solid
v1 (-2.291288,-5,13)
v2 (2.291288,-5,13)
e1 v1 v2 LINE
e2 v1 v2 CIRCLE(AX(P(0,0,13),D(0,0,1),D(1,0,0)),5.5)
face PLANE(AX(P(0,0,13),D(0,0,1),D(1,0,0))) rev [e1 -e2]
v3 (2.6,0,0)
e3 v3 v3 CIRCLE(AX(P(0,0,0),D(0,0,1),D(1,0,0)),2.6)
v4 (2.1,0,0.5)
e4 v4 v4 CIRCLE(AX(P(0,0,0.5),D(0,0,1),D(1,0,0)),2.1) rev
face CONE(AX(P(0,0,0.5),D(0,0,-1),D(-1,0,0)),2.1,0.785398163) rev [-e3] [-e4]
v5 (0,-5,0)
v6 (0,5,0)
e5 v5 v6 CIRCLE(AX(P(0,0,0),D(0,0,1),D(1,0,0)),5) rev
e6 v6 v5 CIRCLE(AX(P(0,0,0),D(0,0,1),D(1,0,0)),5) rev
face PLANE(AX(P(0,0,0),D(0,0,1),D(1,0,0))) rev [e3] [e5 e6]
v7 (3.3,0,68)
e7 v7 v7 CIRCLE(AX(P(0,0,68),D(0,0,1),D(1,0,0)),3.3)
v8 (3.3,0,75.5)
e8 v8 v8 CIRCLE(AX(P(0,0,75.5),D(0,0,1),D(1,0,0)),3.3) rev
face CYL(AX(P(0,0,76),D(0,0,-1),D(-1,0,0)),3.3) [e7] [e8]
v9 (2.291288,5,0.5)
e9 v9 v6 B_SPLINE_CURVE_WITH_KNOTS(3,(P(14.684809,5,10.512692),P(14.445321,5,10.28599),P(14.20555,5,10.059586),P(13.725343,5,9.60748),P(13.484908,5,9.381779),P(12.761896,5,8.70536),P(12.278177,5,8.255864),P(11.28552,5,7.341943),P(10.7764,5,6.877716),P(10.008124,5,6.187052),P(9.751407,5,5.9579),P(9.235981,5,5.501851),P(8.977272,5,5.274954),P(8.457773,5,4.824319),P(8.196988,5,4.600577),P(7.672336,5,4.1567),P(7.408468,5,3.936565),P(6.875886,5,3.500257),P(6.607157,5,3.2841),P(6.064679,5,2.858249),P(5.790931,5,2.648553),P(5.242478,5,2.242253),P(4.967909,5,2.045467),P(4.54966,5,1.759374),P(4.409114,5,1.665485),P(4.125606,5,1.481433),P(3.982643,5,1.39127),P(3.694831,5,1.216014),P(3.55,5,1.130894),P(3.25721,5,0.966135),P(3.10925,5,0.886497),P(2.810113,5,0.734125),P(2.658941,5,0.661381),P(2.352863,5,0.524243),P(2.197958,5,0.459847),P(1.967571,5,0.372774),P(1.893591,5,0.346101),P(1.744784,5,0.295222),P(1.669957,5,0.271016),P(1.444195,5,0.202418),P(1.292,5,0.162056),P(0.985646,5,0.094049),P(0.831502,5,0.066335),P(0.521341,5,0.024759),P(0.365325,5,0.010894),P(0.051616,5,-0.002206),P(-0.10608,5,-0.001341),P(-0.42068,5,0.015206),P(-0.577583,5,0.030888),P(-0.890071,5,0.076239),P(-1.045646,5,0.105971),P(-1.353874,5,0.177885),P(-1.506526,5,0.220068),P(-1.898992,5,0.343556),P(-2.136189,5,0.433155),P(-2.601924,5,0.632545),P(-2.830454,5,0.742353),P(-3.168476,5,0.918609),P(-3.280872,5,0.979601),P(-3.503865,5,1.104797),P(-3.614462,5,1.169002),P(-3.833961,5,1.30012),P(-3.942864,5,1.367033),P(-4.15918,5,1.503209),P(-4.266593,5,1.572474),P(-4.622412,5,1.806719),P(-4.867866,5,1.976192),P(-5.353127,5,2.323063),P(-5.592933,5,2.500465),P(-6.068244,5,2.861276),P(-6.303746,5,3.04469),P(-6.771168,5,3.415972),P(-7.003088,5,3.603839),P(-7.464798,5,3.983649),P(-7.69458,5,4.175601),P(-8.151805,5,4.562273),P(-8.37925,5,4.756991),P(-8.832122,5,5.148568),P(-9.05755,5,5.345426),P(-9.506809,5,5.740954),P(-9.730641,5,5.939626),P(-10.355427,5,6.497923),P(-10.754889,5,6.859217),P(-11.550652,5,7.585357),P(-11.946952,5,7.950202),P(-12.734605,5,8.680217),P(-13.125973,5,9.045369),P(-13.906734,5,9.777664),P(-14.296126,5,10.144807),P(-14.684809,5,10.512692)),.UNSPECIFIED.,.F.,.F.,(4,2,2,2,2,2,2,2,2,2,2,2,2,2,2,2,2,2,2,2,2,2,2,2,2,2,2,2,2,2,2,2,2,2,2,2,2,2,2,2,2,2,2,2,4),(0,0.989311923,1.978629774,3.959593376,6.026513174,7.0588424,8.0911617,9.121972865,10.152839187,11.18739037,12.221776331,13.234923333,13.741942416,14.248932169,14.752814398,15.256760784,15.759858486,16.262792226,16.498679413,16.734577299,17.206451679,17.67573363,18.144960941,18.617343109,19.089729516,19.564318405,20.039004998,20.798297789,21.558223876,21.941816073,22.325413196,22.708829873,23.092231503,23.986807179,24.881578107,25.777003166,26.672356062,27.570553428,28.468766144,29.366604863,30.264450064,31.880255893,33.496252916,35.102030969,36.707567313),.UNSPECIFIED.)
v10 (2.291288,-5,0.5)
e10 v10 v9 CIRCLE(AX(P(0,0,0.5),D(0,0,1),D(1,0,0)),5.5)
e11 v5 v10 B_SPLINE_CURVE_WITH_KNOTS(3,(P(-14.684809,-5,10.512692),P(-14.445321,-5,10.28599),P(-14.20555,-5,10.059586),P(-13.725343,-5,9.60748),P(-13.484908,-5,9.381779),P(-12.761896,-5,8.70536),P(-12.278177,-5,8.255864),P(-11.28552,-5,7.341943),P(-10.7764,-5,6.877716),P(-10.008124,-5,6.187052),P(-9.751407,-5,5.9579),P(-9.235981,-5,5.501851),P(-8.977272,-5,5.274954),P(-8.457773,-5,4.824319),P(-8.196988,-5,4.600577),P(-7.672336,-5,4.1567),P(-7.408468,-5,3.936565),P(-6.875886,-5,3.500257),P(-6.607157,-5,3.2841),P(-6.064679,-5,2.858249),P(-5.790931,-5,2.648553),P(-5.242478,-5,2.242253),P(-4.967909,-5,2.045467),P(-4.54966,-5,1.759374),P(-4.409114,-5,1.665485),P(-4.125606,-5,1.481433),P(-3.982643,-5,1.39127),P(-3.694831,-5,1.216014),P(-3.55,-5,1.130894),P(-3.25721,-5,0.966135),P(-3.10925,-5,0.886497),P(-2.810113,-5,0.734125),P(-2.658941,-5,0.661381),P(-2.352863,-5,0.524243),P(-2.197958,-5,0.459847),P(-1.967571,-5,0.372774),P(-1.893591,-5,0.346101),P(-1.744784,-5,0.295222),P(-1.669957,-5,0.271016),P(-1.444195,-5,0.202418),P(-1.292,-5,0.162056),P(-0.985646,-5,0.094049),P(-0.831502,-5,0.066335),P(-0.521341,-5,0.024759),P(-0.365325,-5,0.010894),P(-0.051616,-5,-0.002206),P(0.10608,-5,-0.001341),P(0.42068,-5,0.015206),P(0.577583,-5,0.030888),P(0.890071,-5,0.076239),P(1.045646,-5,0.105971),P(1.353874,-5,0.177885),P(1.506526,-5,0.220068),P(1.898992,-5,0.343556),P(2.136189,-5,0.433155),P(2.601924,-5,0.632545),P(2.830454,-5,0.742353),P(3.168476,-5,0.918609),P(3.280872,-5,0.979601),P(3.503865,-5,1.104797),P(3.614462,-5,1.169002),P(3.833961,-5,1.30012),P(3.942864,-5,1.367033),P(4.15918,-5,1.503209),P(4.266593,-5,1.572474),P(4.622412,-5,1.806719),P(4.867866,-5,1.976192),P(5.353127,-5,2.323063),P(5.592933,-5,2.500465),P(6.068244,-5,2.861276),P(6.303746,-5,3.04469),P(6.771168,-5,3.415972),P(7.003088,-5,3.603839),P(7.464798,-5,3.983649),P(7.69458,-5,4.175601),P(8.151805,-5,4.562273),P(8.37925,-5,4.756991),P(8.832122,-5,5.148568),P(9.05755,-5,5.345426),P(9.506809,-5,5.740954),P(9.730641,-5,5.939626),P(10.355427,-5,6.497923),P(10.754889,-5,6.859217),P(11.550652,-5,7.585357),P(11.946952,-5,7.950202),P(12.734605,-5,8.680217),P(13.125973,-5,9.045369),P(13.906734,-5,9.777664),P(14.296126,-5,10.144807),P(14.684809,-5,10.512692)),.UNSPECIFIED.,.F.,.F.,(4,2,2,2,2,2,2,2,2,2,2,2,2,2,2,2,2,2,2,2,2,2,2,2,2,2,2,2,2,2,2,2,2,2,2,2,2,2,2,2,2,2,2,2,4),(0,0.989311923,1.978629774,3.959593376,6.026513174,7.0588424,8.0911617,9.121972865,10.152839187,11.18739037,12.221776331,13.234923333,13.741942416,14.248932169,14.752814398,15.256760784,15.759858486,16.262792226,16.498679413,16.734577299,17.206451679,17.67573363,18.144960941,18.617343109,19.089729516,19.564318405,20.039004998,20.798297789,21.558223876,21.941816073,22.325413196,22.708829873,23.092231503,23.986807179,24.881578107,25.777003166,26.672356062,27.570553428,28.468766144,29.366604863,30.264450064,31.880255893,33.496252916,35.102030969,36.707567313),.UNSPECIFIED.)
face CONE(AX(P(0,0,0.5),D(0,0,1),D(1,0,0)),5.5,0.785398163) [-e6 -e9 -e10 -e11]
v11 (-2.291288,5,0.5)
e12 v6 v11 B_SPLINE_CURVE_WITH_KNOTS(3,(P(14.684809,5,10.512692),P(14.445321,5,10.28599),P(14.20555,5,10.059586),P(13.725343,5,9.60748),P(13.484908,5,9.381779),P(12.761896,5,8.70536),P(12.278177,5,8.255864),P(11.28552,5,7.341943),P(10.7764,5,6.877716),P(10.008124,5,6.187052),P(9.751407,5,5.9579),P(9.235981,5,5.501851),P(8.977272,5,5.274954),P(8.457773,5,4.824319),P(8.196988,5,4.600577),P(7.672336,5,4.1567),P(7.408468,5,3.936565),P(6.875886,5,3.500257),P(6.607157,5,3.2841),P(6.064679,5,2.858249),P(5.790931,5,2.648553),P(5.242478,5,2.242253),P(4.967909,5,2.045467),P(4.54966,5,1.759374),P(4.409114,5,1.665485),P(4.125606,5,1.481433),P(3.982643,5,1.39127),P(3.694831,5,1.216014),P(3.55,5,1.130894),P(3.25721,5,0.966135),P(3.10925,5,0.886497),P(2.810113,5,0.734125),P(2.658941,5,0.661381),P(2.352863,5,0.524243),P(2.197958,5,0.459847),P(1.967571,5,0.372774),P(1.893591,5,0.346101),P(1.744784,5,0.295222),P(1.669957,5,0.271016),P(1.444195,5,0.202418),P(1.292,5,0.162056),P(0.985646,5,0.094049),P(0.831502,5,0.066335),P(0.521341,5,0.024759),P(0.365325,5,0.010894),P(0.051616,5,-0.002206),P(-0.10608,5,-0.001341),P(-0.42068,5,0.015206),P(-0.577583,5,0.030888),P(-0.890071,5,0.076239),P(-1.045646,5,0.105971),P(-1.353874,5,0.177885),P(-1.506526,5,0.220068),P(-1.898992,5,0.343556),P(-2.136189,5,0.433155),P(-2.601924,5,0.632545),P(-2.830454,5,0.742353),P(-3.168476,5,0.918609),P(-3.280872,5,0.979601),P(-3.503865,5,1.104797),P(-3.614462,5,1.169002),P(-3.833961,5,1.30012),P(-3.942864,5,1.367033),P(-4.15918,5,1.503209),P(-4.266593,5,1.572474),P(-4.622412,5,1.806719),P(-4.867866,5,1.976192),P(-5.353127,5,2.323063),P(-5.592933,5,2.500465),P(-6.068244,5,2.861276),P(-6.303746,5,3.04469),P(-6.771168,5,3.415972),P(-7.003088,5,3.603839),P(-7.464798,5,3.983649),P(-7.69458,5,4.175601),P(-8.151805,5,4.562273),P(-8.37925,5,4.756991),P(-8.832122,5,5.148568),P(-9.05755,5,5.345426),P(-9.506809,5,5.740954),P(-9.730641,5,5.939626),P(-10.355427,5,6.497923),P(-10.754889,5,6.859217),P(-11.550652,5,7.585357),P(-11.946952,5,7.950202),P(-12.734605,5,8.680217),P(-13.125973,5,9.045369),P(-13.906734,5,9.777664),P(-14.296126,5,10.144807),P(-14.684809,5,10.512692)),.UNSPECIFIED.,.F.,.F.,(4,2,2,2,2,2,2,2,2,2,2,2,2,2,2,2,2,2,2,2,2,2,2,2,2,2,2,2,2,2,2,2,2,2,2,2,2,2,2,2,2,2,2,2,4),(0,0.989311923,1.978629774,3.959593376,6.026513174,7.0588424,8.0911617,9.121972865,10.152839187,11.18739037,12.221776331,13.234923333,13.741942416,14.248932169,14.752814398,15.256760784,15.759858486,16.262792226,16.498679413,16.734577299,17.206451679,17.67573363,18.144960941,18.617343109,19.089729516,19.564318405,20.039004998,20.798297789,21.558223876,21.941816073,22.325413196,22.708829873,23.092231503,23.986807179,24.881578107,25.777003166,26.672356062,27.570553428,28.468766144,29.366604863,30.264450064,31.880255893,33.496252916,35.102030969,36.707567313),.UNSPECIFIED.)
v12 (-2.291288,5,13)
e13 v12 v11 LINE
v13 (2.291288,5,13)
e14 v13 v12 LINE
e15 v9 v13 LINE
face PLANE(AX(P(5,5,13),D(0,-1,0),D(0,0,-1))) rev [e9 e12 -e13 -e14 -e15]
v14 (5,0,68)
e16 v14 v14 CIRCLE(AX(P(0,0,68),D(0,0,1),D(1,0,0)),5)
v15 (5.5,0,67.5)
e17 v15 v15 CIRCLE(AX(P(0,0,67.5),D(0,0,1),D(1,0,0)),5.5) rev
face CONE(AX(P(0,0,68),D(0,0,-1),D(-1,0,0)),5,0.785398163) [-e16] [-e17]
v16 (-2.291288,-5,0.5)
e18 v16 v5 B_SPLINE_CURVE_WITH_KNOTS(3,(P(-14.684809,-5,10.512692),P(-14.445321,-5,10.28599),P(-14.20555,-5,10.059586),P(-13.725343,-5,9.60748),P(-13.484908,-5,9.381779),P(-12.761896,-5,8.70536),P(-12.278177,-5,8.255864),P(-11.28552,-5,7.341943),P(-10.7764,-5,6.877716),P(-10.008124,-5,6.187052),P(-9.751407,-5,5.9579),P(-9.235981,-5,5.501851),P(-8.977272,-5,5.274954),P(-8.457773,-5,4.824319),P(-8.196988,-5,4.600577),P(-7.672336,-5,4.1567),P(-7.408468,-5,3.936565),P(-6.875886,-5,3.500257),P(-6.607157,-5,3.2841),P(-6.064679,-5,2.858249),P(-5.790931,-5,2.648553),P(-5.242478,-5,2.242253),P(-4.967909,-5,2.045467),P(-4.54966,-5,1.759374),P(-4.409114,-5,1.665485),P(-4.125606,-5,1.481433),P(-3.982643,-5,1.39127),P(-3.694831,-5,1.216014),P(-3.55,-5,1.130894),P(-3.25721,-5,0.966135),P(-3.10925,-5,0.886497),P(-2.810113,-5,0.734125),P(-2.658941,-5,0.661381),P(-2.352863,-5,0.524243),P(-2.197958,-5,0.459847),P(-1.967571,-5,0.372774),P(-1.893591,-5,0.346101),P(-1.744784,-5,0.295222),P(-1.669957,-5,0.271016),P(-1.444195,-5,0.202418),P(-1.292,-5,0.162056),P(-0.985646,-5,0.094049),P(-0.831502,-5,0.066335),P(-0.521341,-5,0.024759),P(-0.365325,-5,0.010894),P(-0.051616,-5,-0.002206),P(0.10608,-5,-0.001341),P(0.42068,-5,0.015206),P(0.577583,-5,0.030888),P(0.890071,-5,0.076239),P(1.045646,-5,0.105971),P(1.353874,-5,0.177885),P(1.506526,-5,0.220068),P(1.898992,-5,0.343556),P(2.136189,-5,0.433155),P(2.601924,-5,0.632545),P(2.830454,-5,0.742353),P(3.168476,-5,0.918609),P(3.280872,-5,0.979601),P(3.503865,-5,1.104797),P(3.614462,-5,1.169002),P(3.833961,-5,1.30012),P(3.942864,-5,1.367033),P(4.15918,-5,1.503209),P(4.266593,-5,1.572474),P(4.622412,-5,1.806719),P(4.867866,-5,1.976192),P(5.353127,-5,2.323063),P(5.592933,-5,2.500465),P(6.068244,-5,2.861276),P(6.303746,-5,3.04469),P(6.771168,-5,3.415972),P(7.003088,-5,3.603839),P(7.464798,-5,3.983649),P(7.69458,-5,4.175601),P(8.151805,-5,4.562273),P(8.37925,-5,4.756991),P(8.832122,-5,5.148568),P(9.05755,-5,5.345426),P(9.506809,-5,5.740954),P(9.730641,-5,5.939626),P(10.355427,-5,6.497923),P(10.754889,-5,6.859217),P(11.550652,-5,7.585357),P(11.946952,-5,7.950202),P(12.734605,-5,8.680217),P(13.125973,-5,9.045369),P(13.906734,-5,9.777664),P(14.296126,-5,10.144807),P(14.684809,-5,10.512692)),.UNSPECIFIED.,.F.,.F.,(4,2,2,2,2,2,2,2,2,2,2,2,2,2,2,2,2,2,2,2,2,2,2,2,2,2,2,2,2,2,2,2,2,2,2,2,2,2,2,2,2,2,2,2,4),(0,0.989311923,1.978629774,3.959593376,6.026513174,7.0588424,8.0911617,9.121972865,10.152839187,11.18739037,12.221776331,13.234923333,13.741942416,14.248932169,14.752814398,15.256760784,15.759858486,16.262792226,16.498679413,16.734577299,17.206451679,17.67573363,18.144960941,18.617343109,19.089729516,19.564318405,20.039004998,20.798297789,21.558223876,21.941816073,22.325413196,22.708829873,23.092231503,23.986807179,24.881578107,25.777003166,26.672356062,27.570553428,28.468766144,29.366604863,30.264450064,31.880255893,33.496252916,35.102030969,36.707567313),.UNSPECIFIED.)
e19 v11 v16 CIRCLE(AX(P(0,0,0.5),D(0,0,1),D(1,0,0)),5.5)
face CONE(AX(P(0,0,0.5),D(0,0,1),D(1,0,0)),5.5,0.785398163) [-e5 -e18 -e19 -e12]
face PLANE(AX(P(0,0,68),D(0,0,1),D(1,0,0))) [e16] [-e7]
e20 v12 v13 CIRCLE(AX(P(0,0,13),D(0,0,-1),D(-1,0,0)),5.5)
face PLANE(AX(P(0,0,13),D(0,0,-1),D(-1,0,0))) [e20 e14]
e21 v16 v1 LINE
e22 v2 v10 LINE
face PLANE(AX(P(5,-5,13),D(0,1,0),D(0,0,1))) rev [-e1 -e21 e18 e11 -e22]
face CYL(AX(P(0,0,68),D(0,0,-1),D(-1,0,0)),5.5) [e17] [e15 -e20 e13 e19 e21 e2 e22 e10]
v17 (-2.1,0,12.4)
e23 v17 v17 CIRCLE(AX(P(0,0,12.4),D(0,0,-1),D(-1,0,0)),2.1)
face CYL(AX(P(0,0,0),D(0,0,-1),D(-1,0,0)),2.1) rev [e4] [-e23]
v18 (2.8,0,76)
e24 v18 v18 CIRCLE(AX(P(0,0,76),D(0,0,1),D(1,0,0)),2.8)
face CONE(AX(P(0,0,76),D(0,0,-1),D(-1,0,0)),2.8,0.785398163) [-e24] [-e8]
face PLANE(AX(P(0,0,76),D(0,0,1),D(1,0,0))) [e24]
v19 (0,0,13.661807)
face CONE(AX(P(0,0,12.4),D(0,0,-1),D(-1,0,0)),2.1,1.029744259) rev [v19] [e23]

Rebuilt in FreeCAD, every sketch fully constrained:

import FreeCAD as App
import Part
import Sketcher

V = App.Vector


def edges_at(feature, points):
    """Names of the edges that pass closest to the given points."""
    edges = feature.Shape.Edges
    near = lambda p: min(range(len(edges)), key=lambda i: edges[i].distToShape(Part.Vertex(*p))[0])
    return sorted({f"Edge{near(p) + 1}" for p in points})


def add_polygon(sketch, points):
    """Adds a closed chain of lines whose ends are joined by coincident constraints."""
    first, n = sketch.GeometryCount, len(points)
    for a, b in zip(points, points[1:] + points[:1]):
        sketch.addGeometry(Part.LineSegment(App.Vector(*a, 0), App.Vector(*b, 0)), False)
    for i in range(n):
        sketch.addConstraint(Sketcher.Constraint("Coincident", first + i, 2, first + (i + 1) % n, 1))

doc = App.newDocument("Part")
params = doc.addObject("Spreadsheet::Sheet", "Params")
for row, (alias, value) in enumerate([
    ("sketch1_diameter", "11 mm"),
    ("pad1_length", "68 mm"),
    ("chamfer_size", "0.5 mm"),
    ("sketch2_diameter", "6.6 mm"),
    ("pad2_length", "8 mm"),
    ("chamfer2_size", "0.5 mm"),
    ("sketch3_diameter", "4.2 mm"),
    ("hole_diameter", "4.2 mm"),
    ("hole_depth", "12.4 mm"),
    ("chamfer3_size", "0.5 mm"),
    ("sketch4_width", "10 mm"),
    ("sketch4_height", "3 mm"),
    ("pocket1_length", "13 mm"),
], start=1):
    params.set(f"A{row}", alias)
    params.set(f"B{row}", "=" + value)
    params.setAlias(f"B{row}", alias)

body = doc.addObject("PartDesign::Body", "Body")

# Sketch on XY plane
sketch1 = doc.addObject("Sketcher::SketchObject", "Sketch")
body.addObject(sketch1)
sketch1.AttachmentSupport = (doc.XY_Plane, [""])
sketch1.MapMode = "FlatFace"
sketch1.addGeometry(Part.Circle(V(0, 0, 0), V(0, 0, 1), 5.5), False)
sketch1.addConstraint(Sketcher.Constraint("Coincident", 0, 3, -1, 1))
sketch1.addConstraint(Sketcher.Constraint("Diameter", 0, 11.0))
sketch1.setExpression("Constraints[1]", "Params.sketch1_diameter")
pad1 = doc.addObject("PartDesign::Pad", "Pad")
body.addObject(pad1)
pad1.Profile = sketch1
pad1.setExpression("Length", "Params.pad1_length")
doc.recompute()

chamfer = doc.addObject("PartDesign::Chamfer", "Chamfer")
body.addObject(chamfer)
chamfer.Base = (pad1, edges_at(pad1, [(-5.5, 0, 0), (-5.5, 0, 68)]))
chamfer.setExpression("Size", "Params.chamfer_size")

# Sketch on XY plane
sketch2 = doc.addObject("Sketcher::SketchObject", "Sketch001")
body.addObject(sketch2)
sketch2.AttachmentSupport = (doc.XY_Plane, [""])
sketch2.MapMode = "FlatFace"
sketch2.AttachmentOffset = App.Placement(V(0, 0, 68), App.Rotation())
sketch2.addGeometry(Part.Circle(V(0, 0, 0), V(0, 0, 1), 3.3), False)
sketch2.addConstraint(Sketcher.Constraint("Coincident", 0, 3, -1, 1))
sketch2.addConstraint(Sketcher.Constraint("Diameter", 0, 6.6))
sketch2.setExpression("Constraints[1]", "Params.sketch2_diameter")
pad2 = doc.addObject("PartDesign::Pad", "Pad001")
body.addObject(pad2)
pad2.Profile = sketch2
pad2.setExpression("Length", "Params.pad2_length")
doc.recompute()

chamfer2 = doc.addObject("PartDesign::Chamfer", "Chamfer001")
body.addObject(chamfer2)
chamfer2.Base = (pad2, edges_at(pad2, [(-3.3, 0, 76)]))
chamfer2.setExpression("Size", "Params.chamfer2_size")

# Sketch on XY plane
sketch3 = doc.addObject("Sketcher::SketchObject", "Sketch002")
body.addObject(sketch3)
sketch3.AttachmentSupport = (doc.XY_Plane, [""])
sketch3.MapMode = "FlatFace"
sketch3.addGeometry(Part.Circle(V(0, 0, 0), V(0, 0, 1), 2.1), False)
sketch3.addConstraint(Sketcher.Constraint("Coincident", 0, 3, -1, 1))
sketch3.addConstraint(Sketcher.Constraint("Diameter", 0, 4.2))
sketch3.setExpression("Constraints[1]", "Params.sketch3_diameter")
doc.recompute()
hole = doc.addObject("PartDesign::Hole", "Hole")
body.addObject(hole)
hole.Profile = sketch3
hole.ThreadType = "None"
hole.setExpression("Diameter", "Params.hole_diameter")
hole.DepthType = "Dimension"
hole.setExpression("Depth", "Params.hole_depth")
hole.DrillPoint = "Angled"
hole.DrillPointAngle = 118
hole.Reversed = True
doc.recompute()

chamfer3 = doc.addObject("PartDesign::Chamfer", "Chamfer002")
body.addObject(chamfer3)
chamfer3.Base = (hole, edges_at(hole, [(-2.1, 0, 0)]))
chamfer3.setExpression("Size", "Params.chamfer3_size")

# Sketch on XY plane
sketch4 = doc.addObject("Sketcher::SketchObject", "Sketch003")
body.addObject(sketch4)
sketch4.AttachmentSupport = (doc.XY_Plane, [""])
sketch4.MapMode = "FlatFace"
add_polygon(sketch4, [(5, 8), (5, 5), (-5, 5), (-5, 8)])  # lines 0-3
add_polygon(sketch4, [(5, -5), (5, -8), (-5, -8), (-5, -5)])  # lines 4-7
sketch4.addConstraint(Sketcher.Constraint("Vertical", 0))
sketch4.addConstraint(Sketcher.Constraint("Horizontal", 1))
sketch4.addConstraint(Sketcher.Constraint("Vertical", 2))
sketch4.addConstraint(Sketcher.Constraint("Horizontal", 3))
sketch4.addConstraint(Sketcher.Constraint("Vertical", 4))
sketch4.addConstraint(Sketcher.Constraint("Horizontal", 5))
sketch4.addConstraint(Sketcher.Constraint("Vertical", 6))
sketch4.addConstraint(Sketcher.Constraint("Horizontal", 7))
sketch4.addConstraint(Sketcher.Constraint("Symmetric", 2, 2, 4, 2, -1, 1))
sketch4.addConstraint(Sketcher.Constraint("Symmetric", 0, 2, 6, 2, -1, 1))
sketch4.addConstraint(Sketcher.Constraint("Vertical", 3, 2, 4, 2))
sketch4.addConstraint(Sketcher.Constraint("DistanceX", 1, 2, 1, 1, 10.0))
sketch4.addConstraint(Sketcher.Constraint("DistanceY", 0, 2, 0, 1, 3.0))
sketch4.addConstraint(Sketcher.Constraint("DistanceY", -1, 1, 0, 2, 5.0))
sketch4.setExpression("Constraints[19]", "Params.sketch4_width")
sketch4.setExpression("Constraints[20]", "Params.sketch4_height")
pocket1 = doc.addObject("PartDesign::Pocket", "Pocket")
body.addObject(pocket1)
pocket1.Profile = sketch4
pocket1.setExpression("Length", "Params.pocket1_length")
pocket1.Reversed = True

doc.recompute()
